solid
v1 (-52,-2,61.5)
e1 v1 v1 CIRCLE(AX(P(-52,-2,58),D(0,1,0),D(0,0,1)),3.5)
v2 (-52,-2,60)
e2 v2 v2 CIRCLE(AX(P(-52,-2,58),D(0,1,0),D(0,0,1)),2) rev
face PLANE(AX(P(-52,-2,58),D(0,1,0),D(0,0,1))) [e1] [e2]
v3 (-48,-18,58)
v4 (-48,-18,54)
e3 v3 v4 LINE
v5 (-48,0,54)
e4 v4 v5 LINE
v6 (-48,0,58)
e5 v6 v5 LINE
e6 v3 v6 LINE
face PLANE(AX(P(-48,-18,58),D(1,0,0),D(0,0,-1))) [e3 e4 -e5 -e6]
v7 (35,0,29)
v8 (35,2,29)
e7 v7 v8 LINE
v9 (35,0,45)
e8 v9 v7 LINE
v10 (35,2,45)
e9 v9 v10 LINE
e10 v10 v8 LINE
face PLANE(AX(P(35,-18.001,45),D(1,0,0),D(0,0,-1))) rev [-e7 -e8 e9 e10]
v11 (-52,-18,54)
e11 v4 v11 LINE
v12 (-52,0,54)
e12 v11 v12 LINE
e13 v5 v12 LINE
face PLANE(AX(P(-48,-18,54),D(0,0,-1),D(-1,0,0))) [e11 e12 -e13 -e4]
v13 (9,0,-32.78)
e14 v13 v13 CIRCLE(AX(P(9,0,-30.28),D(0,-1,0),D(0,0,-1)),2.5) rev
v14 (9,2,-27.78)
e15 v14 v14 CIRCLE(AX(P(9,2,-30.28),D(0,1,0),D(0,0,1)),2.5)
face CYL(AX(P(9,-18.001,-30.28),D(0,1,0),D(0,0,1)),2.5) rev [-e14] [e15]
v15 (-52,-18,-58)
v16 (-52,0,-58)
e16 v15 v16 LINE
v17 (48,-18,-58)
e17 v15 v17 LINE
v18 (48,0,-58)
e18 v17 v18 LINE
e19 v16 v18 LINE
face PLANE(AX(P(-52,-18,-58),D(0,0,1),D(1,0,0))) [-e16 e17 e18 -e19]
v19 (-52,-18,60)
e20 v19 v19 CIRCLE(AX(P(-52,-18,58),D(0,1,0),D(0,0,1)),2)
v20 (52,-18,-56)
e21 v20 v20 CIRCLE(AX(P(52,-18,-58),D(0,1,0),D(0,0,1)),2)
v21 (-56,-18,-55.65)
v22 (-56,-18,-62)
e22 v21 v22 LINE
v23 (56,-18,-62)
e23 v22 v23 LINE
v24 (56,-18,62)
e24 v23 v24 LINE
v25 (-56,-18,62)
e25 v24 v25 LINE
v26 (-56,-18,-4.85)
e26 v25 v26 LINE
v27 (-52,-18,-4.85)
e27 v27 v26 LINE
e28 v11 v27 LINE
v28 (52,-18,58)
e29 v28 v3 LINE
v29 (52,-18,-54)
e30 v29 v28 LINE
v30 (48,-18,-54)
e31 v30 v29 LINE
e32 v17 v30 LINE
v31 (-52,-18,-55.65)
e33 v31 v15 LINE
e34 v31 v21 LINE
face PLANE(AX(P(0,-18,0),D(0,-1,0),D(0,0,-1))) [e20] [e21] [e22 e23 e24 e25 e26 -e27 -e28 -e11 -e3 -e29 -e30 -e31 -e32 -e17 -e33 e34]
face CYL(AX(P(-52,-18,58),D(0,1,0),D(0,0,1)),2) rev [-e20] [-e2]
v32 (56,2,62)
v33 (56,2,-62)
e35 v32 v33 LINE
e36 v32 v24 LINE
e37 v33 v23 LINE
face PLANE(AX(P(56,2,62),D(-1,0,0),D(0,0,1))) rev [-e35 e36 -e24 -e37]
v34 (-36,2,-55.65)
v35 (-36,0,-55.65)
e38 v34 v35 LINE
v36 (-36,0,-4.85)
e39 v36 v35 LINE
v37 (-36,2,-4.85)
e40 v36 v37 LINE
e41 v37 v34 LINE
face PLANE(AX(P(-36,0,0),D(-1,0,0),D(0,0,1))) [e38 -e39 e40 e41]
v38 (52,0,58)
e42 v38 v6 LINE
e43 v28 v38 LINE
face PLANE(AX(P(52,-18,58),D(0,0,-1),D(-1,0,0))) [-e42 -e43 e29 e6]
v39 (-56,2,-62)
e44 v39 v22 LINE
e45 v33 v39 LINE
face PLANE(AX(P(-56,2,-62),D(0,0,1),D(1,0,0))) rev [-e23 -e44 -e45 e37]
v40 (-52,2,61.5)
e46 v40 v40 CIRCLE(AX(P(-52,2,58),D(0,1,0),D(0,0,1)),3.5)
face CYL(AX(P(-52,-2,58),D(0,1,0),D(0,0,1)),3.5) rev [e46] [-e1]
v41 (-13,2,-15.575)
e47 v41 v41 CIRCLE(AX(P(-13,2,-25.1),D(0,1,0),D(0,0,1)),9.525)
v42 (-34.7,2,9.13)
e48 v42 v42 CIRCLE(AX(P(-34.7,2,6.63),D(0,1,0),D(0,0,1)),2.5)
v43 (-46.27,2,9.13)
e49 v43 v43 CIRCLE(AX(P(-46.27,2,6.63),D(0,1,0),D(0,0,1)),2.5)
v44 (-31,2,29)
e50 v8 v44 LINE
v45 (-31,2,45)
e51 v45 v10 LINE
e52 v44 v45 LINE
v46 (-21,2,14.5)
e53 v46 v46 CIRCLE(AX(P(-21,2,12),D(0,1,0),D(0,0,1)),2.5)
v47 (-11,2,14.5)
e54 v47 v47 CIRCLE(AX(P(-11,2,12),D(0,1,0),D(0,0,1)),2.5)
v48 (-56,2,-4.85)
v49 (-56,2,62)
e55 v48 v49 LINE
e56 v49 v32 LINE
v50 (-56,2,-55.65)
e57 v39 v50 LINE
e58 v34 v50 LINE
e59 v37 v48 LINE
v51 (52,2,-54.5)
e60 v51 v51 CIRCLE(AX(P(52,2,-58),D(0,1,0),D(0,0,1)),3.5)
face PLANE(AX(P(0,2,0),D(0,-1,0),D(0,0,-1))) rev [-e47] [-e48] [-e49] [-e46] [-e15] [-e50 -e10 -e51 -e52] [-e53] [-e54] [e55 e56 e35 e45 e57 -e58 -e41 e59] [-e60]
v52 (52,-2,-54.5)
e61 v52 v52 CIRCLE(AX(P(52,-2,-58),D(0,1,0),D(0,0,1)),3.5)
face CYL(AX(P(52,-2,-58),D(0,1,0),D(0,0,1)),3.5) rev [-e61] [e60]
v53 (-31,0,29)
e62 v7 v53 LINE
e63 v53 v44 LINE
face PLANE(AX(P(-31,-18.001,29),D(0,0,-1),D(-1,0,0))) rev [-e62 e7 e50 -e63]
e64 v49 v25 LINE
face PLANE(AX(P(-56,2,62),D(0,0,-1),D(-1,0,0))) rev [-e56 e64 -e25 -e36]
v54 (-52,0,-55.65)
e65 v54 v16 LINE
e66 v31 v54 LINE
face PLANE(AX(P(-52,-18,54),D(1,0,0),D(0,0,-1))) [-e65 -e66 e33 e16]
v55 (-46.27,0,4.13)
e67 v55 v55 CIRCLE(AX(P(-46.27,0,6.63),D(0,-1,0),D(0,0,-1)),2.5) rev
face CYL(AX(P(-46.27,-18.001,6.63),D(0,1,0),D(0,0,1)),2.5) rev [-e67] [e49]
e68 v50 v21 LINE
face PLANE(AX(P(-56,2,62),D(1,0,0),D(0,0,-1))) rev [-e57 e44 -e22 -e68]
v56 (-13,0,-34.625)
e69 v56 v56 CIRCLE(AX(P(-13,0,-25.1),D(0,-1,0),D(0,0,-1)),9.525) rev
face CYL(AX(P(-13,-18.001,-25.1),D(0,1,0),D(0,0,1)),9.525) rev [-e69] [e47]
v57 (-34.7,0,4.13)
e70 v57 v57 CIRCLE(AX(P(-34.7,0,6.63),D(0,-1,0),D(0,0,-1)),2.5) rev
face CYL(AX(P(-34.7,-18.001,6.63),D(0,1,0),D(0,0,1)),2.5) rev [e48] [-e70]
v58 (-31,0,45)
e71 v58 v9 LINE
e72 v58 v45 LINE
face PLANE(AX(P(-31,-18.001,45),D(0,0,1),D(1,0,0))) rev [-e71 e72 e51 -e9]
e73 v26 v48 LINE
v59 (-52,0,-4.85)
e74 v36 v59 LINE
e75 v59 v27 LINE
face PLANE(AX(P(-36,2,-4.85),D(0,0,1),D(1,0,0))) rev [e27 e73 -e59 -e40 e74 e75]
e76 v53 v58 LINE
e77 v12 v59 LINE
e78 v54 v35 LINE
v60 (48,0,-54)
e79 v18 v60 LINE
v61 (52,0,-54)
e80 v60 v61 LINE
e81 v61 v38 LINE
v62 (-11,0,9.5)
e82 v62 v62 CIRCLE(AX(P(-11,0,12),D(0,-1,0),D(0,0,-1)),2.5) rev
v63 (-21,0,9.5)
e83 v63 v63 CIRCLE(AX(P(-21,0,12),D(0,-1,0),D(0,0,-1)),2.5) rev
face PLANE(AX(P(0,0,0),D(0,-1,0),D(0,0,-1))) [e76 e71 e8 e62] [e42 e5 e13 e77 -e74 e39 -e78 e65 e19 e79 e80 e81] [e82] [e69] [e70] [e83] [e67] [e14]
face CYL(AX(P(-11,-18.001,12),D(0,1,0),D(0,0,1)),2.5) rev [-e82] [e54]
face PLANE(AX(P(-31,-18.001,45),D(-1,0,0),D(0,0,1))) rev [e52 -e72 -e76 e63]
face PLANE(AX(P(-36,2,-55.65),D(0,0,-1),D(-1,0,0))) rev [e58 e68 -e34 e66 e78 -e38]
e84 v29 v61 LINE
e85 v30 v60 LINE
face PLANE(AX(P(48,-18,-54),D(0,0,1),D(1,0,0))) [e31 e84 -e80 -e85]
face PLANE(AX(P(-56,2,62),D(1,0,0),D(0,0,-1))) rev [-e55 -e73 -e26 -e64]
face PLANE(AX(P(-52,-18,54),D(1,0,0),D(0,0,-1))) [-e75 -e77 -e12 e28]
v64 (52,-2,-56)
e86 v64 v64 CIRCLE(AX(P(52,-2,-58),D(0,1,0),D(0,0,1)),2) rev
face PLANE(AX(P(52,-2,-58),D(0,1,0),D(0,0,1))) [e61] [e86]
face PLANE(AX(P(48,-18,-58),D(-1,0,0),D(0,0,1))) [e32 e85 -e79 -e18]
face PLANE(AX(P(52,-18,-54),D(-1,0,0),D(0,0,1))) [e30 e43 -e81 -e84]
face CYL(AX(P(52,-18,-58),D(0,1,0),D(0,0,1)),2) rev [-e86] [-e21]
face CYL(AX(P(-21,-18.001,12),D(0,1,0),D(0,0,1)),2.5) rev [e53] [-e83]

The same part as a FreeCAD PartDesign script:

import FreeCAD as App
import Part
import Sketcher
from FreeCAD import Vector
Q = App.Units.Quantity

doc = App.newDocument("Part")
body = doc.addObject("PartDesign::Body", "Body")

# Sketch on XZ plane
sketch1 = body.newObject("Sketcher::SketchObject", "Sketch")
sketch1.AttachmentSupport = (doc.getObject("XZ_Plane"), [""])
sketch1.MapMode = "FlatFace"
sketch1.addGeometry([
    Part.LineSegment(Vector(-56, -62, 0), Vector(-56, 62, 0)),
    Part.LineSegment(Vector(-56, 62, 0), Vector(56, 62, 0)),
    Part.LineSegment(Vector(56, 62, 0), Vector(56, -62, 0)),
    Part.LineSegment(Vector(56, -62, 0), Vector(-56, -62, 0)),
], False)
sketch1.addConstraint([
    Sketcher.Constraint("Coincident", 0, 2, 1, 1),
    Sketcher.Constraint("Coincident", 1, 2, 2, 1),
    Sketcher.Constraint("Coincident", 2, 2, 3, 1),
    Sketcher.Constraint("Coincident", 3, 2, 0, 1),
    Sketcher.Constraint("Vertical", 0),
    Sketcher.Constraint("Horizontal", 1),
    Sketcher.Constraint("Vertical", 2),
    Sketcher.Constraint("Horizontal", 3),
    Sketcher.Constraint("Symmetric", 0, 2, 2, 2, -1, 1),
    Sketcher.Constraint("DistanceX", 1, 1, 1, 2, Q("112 mm")),
    Sketcher.Constraint("DistanceY", 0, 1, 0, 2, Q("124 mm")),
])
pad1 = body.newObject("PartDesign::Pad", "Pad")
pad1.Profile = sketch1
pad1.Length = 2
pad1.Reversed = True

# Sketch on XZ plane
sketch2 = body.newObject("Sketcher::SketchObject", "Sketch001")
sketch2.AttachmentSupport = (doc.getObject("XZ_Plane"), [""])
sketch2.MapMode = "FlatFace"
sketch2.addGeometry([
    Part.LineSegment(Vector(-56, 62, 0), Vector(-56, -62, 0)),  # 0
    Part.LineSegment(Vector(-56, -62, 0), Vector(56, -62, 0)),  # 1
    Part.LineSegment(Vector(56, -62, 0), Vector(56, 62, 0)),  # 2
    Part.LineSegment(Vector(56, 62, 0), Vector(-56, 62, 0)),  # 3
    Part.LineSegment(Vector(-48, 54, 0), Vector(-48, 58, 0)),  # 4
    Part.LineSegment(Vector(-48, 58, 0), Vector(52, 58, 0)),  # 5
    Part.LineSegment(Vector(52, 58, 0), Vector(52, -54, 0)),  # 6
    Part.LineSegment(Vector(52, -54, 0), Vector(48, -54, 0)),  # 7
    Part.LineSegment(Vector(48, -54, 0), Vector(48, -58, 0)),  # 8
    Part.LineSegment(Vector(48, -58, 0), Vector(-52, -58, 0)),  # 9
    Part.LineSegment(Vector(-52, -58, 0), Vector(-52, 54, 0)),  # 10
    Part.LineSegment(Vector(-52, 54, 0), Vector(-48, 54, 0)),  # 11
], False)
sketch2.addConstraint([
    Sketcher.Constraint("Coincident", 0, 2, 1, 1),
    Sketcher.Constraint("Coincident", 1, 2, 2, 1),
    Sketcher.Constraint("Coincident", 2, 2, 3, 1),
    Sketcher.Constraint("Coincident", 3, 2, 0, 1),
    Sketcher.Constraint("Coincident", 4, 2, 5, 1),
    Sketcher.Constraint("Coincident", 5, 2, 6, 1),
    Sketcher.Constraint("Coincident", 6, 2, 7, 1),
    Sketcher.Constraint("Coincident", 7, 2, 8, 1),
    Sketcher.Constraint("Coincident", 8, 2, 9, 1),
    Sketcher.Constraint("Coincident", 9, 2, 10, 1),
    Sketcher.Constraint("Coincident", 10, 2, 11, 1),
    Sketcher.Constraint("Coincident", 11, 2, 4, 1),
    Sketcher.Constraint("Vertical", 0),
    Sketcher.Constraint("Horizontal", 1),
    Sketcher.Constraint("Vertical", 2),
    Sketcher.Constraint("Horizontal", 3),
    Sketcher.Constraint("Vertical", 4),
    Sketcher.Constraint("Horizontal", 5),
    Sketcher.Constraint("Vertical", 6),
    Sketcher.Constraint("Horizontal", 7),
    Sketcher.Constraint("Vertical", 8),
    Sketcher.Constraint("Horizontal", 9),
    Sketcher.Constraint("Vertical", 10),
    Sketcher.Constraint("Horizontal", 11),
    Sketcher.Constraint("Symmetric", 0, 2, 2, 2, -1, 1),
    Sketcher.Constraint("Symmetric", 4, 2, 8, 2, -1, 1),
    Sketcher.Constraint("Symmetric", 6, 2, 10, 2, -1, 1),
    Sketcher.Constraint("Equal", 11, 4),
    Sketcher.Constraint("Equal", 3, 6),
    Sketcher.Constraint("DistanceX", 1, 1, 1, 2, Q("112 mm")),
    Sketcher.Constraint("DistanceX", 5, 1, 5, 2, Q("100 mm")),
    Sketcher.Constraint("DistanceX", 7, 2, 7, 1, Q("4 mm")),
    Sketcher.Constraint("DistanceY", 0, 2, 0, 1, Q("124 mm")),
])
pad2 = body.newObject("PartDesign::Pad", "Pad001")
pad2.Profile = sketch2
pad2.Length = 18

# Sketch on XZ plane
sketch3 = body.newObject("Sketcher::SketchObject", "Sketch002")
sketch3.AttachmentSupport = (doc.getObject("XZ_Plane"), [""])
sketch3.MapMode = "FlatFace"
sketch3.AttachmentOffset = App.Placement(Vector(0, 0, -2), App.Rotation())
sketch3.addGeometry(Part.Circle(Vector(-13, -25, 0), Vector(0, 0, 1), 10), False)
sketch3.addConstraint([
    Sketcher.Constraint("Diameter", 0, Q("19.05 mm")),
    Sketcher.Constraint("DistanceX", 0, 3, -1, 1, Q("13 mm")),
    Sketcher.Constraint("DistanceY", 0, 3, -1, 1, Q("25.1 mm")),
])
pocket1 = body.newObject("PartDesign::Pocket", "Pocket")
pocket1.Profile = sketch3
pocket1.Type = "UpToFirst"
pocket1.Reversed = True

# Sketch on XZ plane
sketch4 = body.newObject("Sketcher::SketchObject", "Sketch003")
sketch4.AttachmentSupport = (doc.getObject("XZ_Plane"), [""])
sketch4.MapMode = "FlatFace"
sketch4.AttachmentOffset = App.Placement(Vector(0, 0, -2), App.Rotation())
sketch4.addGeometry(Part.Circle(Vector(-46.3, 6.6, 0), Vector(0, 0, 1), 2.5), False)
sketch4.addConstraint([
    Sketcher.Constraint("Diameter", 0, Q("5 mm")),
    Sketcher.Constraint("DistanceX", 0, 3, -1, 1, Q("46.27 mm")),
    Sketcher.Constraint("DistanceY", -1, 1, 0, 3, Q("6.63 mm")),
])
pocket2 = body.newObject("PartDesign::Pocket", "Pocket001")
pocket2.Profile = sketch4
pocket2.Type = "UpToFirst"
pocket2.Reversed = True

# Sketch on XZ plane
sketch5 = body.newObject("Sketcher::SketchObject", "Sketch004")
sketch5.AttachmentSupport = (doc.getObject("XZ_Plane"), [""])
sketch5.MapMode = "FlatFace"
sketch5.AttachmentOffset = App.Placement(Vector(0, 0, -2), App.Rotation())
sketch5.addGeometry(Part.Circle(Vector(-34.7, 6.6, 0), Vector(0, 0, 1), 2.5), False)
sketch5.addConstraint([
    Sketcher.Constraint("Diameter", 0, Q("5 mm")),
    Sketcher.Constraint("DistanceX", 0, 3, -1, 1, Q("34.7 mm")),
    Sketcher.Constraint("DistanceY", -1, 1, 0, 3, Q("6.63 mm")),
])
pocket3 = body.newObject("PartDesign::Pocket", "Pocket002")
pocket3.Profile = sketch5
pocket3.Type = "UpToFirst"
pocket3.Reversed = True

# Sketch on XZ plane
sketch6 = body.newObject("Sketcher::SketchObject", "Sketch005")
sketch6.AttachmentSupport = (doc.getObject("XZ_Plane"), [""])
sketch6.MapMode = "FlatFace"
sketch6.AttachmentOffset = App.Placement(Vector(0, 0, -2), App.Rotation())
sketch6.addGeometry(Part.Circle(Vector(-21, 12, 0), Vector(0, 0, 1), 2.5), False)
sketch6.addConstraint([
    Sketcher.Constraint("Diameter", 0, Q("5 mm")),
    Sketcher.Constraint("DistanceX", 0, 3, -1, 1, Q("21 mm")),
    Sketcher.Constraint("DistanceY", -1, 1, 0, 3, Q("12 mm")),
])
pocket4 = body.newObject("PartDesign::Pocket", "Pocket003")
pocket4.Profile = sketch6
pocket4.Type = "UpToFirst"
pocket4.Reversed = True

# Sketch on XZ plane
sketch7 = body.newObject("Sketcher::SketchObject", "Sketch006")
sketch7.AttachmentSupport = (doc.getObject("XZ_Plane"), [""])
sketch7.MapMode = "FlatFace"
sketch7.AttachmentOffset = App.Placement(Vector(0, 0, -2), App.Rotation())
sketch7.addGeometry(Part.Circle(Vector(-11, 12, 0), Vector(0, 0, 1), 2.5), False)
sketch7.addConstraint([
    Sketcher.Constraint("Diameter", 0, Q("5 mm")),
    Sketcher.Constraint("DistanceX", 0, 3, -1, 1, Q("11 mm")),
    Sketcher.Constraint("DistanceY", -1, 1, 0, 3, Q("12 mm")),
])
pocket5 = body.newObject("PartDesign::Pocket", "Pocket004")
pocket5.Profile = sketch7
pocket5.Type = "UpToFirst"
pocket5.Reversed = True

# Sketch on XZ plane
sketch8 = body.newObject("Sketcher::SketchObject", "Sketch007")
sketch8.AttachmentSupport = (doc.getObject("XZ_Plane"), [""])
sketch8.MapMode = "FlatFace"
sketch8.AttachmentOffset = App.Placement(Vector(0, 0, -2), App.Rotation())
sketch8.addGeometry(Part.Circle(Vector(9, -30.3, 0), Vector(0, 0, 1), 2.5), False)
sketch8.addConstraint([
    Sketcher.Constraint("Diameter", 0, Q("5 mm")),
    Sketcher.Constraint("DistanceX", -1, 1, 0, 3, Q("9 mm")),
    Sketcher.Constraint("DistanceY", 0, 3, -1, 1, Q("30.28 mm")),
])
pocket6 = body.newObject("PartDesign::Pocket", "Pocket005")
pocket6.Profile = sketch8
pocket6.Type = "UpToFirst"
pocket6.Reversed = True

# Sketch on XZ plane
sketch9 = body.newObject("Sketcher::SketchObject", "Sketch008")
sketch9.AttachmentSupport = (doc.getObject("XZ_Plane"), [""])
sketch9.MapMode = "FlatFace"
sketch9.AttachmentOffset = App.Placement(Vector(0, 0, -2), App.Rotation())
sketch9.addGeometry([
    Part.LineSegment(Vector(-31, 29, 0), Vector(-31, 45, 0)),
    Part.LineSegment(Vector(-31, 45, 0), Vector(35, 45, 0)),
    Part.LineSegment(Vector(35, 45, 0), Vector(35, 29, 0)),
    Part.LineSegment(Vector(35, 29, 0), Vector(-31, 29, 0)),
], False)
sketch9.addConstraint([
    Sketcher.Constraint("Coincident", 0, 2, 1, 1),
    Sketcher.Constraint("Coincident", 1, 2, 2, 1),
    Sketcher.Constraint("Coincident", 2, 2, 3, 1),
    Sketcher.Constraint("Coincident", 3, 2, 0, 1),
    Sketcher.Constraint("Vertical", 0),
    Sketcher.Constraint("Horizontal", 1),
    Sketcher.Constraint("Vertical", 2),
    Sketcher.Constraint("Horizontal", 3),
    Sketcher.Constraint("DistanceX", 1, 1, 1, 2, Q("66 mm")),
    Sketcher.Constraint("DistanceY", 0, 1, 0, 2, Q("16 mm")),
    Sketcher.Constraint("DistanceX", 0, 2, -1, 1, Q("31 mm")),
    Sketcher.Constraint("DistanceY", -1, 1, 0, 2, Q("45 mm")),
])
pocket7 = body.newObject("PartDesign::Pocket", "Pocket006")
pocket7.Profile = sketch9
pocket7.Type = "UpToFirst"
pocket7.Reversed = True

# Sketch on XZ plane
sketch10 = body.newObject("Sketcher::SketchObject", "Sketch009")
sketch10.AttachmentSupport = (doc.getObject("XZ_Plane"), [""])
sketch10.MapMode = "FlatFace"
sketch10.AttachmentOffset = App.Placement(Vector(0, 0, -2), App.Rotation())
sketch10.addGeometry([
    Part.Circle(Vector(52, -58, 0), Vector(0, 0, 1), 2),
    Part.Circle(Vector(-52, 58, 0), Vector(0, 0, 1), 2),
], False)
sketch10.addConstraint([
    Sketcher.Constraint("Equal", 0, 1),
    Sketcher.Constraint("Symmetric", 0, 3, 1, 3, -1, 1),
    Sketcher.Constraint("Diameter", 0, Q("4 mm")),
    Sketcher.Constraint("DistanceX", -1, 1, 0, 3, Q("52 mm")),
    Sketcher.Constraint("DistanceY", 0, 3, -1, 1, Q("58 mm")),
])
pocket8 = body.newObject("PartDesign::Pocket", "Pocket007")
pocket8.Profile = sketch10
pocket8.Type = "ThroughAll"
pocket8.Reversed = True

# Sketch on XZ plane
sketch11 = body.newObject("Sketcher::SketchObject", "Sketch010")
sketch11.AttachmentSupport = (doc.getObject("XZ_Plane"), [""])
sketch11.MapMode = "FlatFace"
sketch11.AttachmentOffset = App.Placement(Vector(0, 0, -2), App.Rotation())
sketch11.addGeometry([
    Part.Circle(Vector(-52, 58, 0), Vector(0, 0, 1), 3.5),
    Part.Circle(Vector(52, -58, 0), Vector(0, 0, 1), 3.5),
], False)
sketch11.addConstraint([
    Sketcher.Constraint("Equal", 0, 1),
    Sketcher.Constraint("Symmetric", 0, 3, 1, 3, -1, 1),
    Sketcher.Constraint("Diameter", 0, Q("7 mm")),
    Sketcher.Constraint("DistanceX", 0, 3, -1, 1, Q("52 mm")),
    Sketcher.Constraint("DistanceY", -1, 1, 0, 3, Q("58 mm")),
])
pocket9 = body.newObject("PartDesign::Pocket", "Pocket008")
pocket9.Profile = sketch11
pocket9.Length = 4
pocket9.Reversed = True

# Sketch on YZ plane
sketch12 = body.newObject("Sketcher::SketchObject", "Sketch011")
sketch12.AttachmentSupport = (doc.getObject("YZ_Plane"), [""])
sketch12.MapMode = "FlatFace"
sketch12.AttachmentOffset = App.Placement(Vector(0, 0, -56), App.Rotation())
sketch12.addGeometry([
    Part.LineSegment(Vector(2, -56, 0), Vector(-18, -56, 0)),
    Part.LineSegment(Vector(-18, -56, 0), Vector(-18, -5, 0)),
    Part.LineSegment(Vector(-18, -5, 0), Vector(2, -5, 0)),
    Part.LineSegment(Vector(2, -5, 0), Vector(2, -56, 0)),
], False)
sketch12.addConstraint([
    Sketcher.Constraint("Coincident", 0, 2, 1, 1),
    Sketcher.Constraint("Coincident", 1, 2, 2, 1),
    Sketcher.Constraint("Coincident", 2, 2, 3, 1),
    Sketcher.Constraint("Coincident", 3, 2, 0, 1),
    Sketcher.Constraint("Horizontal", 0),
    Sketcher.Constraint("Vertical", 1),
    Sketcher.Constraint("Horizontal", 2),
    Sketcher.Constraint("Vertical", 3),
    Sketcher.Constraint("DistanceX", 0, 2, 0, 1, Q("20 mm")),
    Sketcher.Constraint("DistanceY", 1, 1, 1, 2, Q("50.8 mm")),
    Sketcher.Constraint("DistanceX", 0, 2, -1, 1, Q("18 mm")),
    Sketcher.Constraint("DistanceY", 0, 2, -1, 1, Q("55.65 mm")),
])
pocket10 = body.newObject("PartDesign::Pocket", "Pocket009")
pocket10.Profile = sketch12
pocket10.Length = 20
pocket10.Reversed = True

doc.recompute()
